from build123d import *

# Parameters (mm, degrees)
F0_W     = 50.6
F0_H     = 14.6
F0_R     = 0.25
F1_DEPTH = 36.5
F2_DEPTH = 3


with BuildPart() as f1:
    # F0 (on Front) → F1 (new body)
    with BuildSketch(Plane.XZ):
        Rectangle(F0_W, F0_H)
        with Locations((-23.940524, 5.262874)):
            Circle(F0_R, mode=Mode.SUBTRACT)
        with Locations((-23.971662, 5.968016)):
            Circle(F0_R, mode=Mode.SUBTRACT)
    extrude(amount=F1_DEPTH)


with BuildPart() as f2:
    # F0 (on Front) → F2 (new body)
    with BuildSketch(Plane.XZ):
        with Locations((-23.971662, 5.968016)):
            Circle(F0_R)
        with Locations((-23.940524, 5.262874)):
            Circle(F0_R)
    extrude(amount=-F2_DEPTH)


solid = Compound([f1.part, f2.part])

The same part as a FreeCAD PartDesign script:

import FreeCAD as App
import Part
import Sketcher

V = App.Vector
Q = App.Units.Quantity

doc = App.newDocument("Part")
body = doc.addObject("PartDesign::Body", "Body")

# Sketch on XZ plane
sketch1 = body.newObject("Sketcher::SketchObject", "Sketch")
sketch1.AttachmentSupport = (doc.getObject("XZ_Plane"), [""])
sketch1.MapMode = "FlatFace"
sketch1.addGeometry([
    Part.LineSegment(V(-25.3, 7.3, 0), V(-25.3, -7.3, 0)),  # 0
    Part.LineSegment(V(-25.3, -7.3, 0), V(25.3, -7.3, 0)),  # 1
    Part.LineSegment(V(25.3, -7.3, 0), V(25.3, 7.3, 0)),  # 2
    Part.LineSegment(V(25.3, 7.3, 0), V(-25.3, 7.3, 0)),  # 3
    Part.Circle(V(-23.94, 5.26, 0), V(0, 0, 1), 0.25),  # 4
    Part.Circle(V(-23.97, 5.97, 0), V(0, 0, 1), 0.25),  # 5
], False)
sketch1.addConstraint([
    Sketcher.Constraint("Coincident", 0, 2, 1, 1),
    Sketcher.Constraint("Coincident", 1, 2, 2, 1),
    Sketcher.Constraint("Coincident", 2, 2, 3, 1),
    Sketcher.Constraint("Coincident", 3, 2, 0, 1),
    Sketcher.Constraint("Vertical", 0),
    Sketcher.Constraint("Horizontal", 1),
    Sketcher.Constraint("Vertical", 2),
    Sketcher.Constraint("Horizontal", 3),
    Sketcher.Constraint("Equal", 4, 5),
    Sketcher.Constraint("Symmetric", 0, 2, 2, 2, -1, 1),
    Sketcher.Constraint("Diameter", 4, Q("0.5 mm")),
    Sketcher.Constraint("DistanceX", 1, 1, 1, 2, Q("50.6 mm")),
    Sketcher.Constraint("DistanceY", 0, 2, 0, 1, Q("14.6 mm")),
    Sketcher.Constraint("DistanceX", 5, 3, -1, 1, Q("23.971662 mm")),
    Sketcher.Constraint("DistanceX", 4, 3, -1, 1, Q("23.940524 mm")),
    Sketcher.Constraint("DistanceY", -1, 1, 4, 3, Q("5.262874 mm")),
    Sketcher.Constraint("DistanceY", -1, 1, 5, 3, Q("5.968016 mm")),
])
pad1 = body.newObject("PartDesign::Pad", "Pad")
pad1.Profile = sketch1
pad1.Length = 36.5
body2 = doc.addObject("PartDesign::Body", "Body001")
body2.AllowCompound = True

# Sketch on XZ plane
sketch2 = body2.newObject("Sketcher::SketchObject", "Sketch001")
sketch2.AttachmentSupport = (doc.getObject("XZ_Plane001"), [""])
sketch2.MapMode = "FlatFace"
sketch2.addGeometry([
    Part.Circle(V(-23.97, 5.97, 0), V(0, 0, 1), 0.25),
    Part.Circle(V(-23.94, 5.26, 0), V(0, 0, 1), 0.25),
], False)
sketch2.addConstraint([
    Sketcher.Constraint("Equal", 0, 1),
    Sketcher.Constraint("Diameter", 0, Q("0.5 mm")),
    Sketcher.Constraint("DistanceX", 0, 3, -1, 1, Q("23.971662 mm")),
    Sketcher.Constraint("DistanceY", -1, 1, 0, 3, Q("5.968016 mm")),
    Sketcher.Constraint("DistanceX", 1, 3, -1, 1, Q("23.940524 mm")),
    Sketcher.Constraint("DistanceY", -1, 1, 1, 3, Q("5.262874 mm")),
])
pad2 = body2.newObject("PartDesign::Pad", "Pad001")
pad2.Profile = sketch2
pad2.Length = 3
pad2.Reversed = True

doc.recompute()
